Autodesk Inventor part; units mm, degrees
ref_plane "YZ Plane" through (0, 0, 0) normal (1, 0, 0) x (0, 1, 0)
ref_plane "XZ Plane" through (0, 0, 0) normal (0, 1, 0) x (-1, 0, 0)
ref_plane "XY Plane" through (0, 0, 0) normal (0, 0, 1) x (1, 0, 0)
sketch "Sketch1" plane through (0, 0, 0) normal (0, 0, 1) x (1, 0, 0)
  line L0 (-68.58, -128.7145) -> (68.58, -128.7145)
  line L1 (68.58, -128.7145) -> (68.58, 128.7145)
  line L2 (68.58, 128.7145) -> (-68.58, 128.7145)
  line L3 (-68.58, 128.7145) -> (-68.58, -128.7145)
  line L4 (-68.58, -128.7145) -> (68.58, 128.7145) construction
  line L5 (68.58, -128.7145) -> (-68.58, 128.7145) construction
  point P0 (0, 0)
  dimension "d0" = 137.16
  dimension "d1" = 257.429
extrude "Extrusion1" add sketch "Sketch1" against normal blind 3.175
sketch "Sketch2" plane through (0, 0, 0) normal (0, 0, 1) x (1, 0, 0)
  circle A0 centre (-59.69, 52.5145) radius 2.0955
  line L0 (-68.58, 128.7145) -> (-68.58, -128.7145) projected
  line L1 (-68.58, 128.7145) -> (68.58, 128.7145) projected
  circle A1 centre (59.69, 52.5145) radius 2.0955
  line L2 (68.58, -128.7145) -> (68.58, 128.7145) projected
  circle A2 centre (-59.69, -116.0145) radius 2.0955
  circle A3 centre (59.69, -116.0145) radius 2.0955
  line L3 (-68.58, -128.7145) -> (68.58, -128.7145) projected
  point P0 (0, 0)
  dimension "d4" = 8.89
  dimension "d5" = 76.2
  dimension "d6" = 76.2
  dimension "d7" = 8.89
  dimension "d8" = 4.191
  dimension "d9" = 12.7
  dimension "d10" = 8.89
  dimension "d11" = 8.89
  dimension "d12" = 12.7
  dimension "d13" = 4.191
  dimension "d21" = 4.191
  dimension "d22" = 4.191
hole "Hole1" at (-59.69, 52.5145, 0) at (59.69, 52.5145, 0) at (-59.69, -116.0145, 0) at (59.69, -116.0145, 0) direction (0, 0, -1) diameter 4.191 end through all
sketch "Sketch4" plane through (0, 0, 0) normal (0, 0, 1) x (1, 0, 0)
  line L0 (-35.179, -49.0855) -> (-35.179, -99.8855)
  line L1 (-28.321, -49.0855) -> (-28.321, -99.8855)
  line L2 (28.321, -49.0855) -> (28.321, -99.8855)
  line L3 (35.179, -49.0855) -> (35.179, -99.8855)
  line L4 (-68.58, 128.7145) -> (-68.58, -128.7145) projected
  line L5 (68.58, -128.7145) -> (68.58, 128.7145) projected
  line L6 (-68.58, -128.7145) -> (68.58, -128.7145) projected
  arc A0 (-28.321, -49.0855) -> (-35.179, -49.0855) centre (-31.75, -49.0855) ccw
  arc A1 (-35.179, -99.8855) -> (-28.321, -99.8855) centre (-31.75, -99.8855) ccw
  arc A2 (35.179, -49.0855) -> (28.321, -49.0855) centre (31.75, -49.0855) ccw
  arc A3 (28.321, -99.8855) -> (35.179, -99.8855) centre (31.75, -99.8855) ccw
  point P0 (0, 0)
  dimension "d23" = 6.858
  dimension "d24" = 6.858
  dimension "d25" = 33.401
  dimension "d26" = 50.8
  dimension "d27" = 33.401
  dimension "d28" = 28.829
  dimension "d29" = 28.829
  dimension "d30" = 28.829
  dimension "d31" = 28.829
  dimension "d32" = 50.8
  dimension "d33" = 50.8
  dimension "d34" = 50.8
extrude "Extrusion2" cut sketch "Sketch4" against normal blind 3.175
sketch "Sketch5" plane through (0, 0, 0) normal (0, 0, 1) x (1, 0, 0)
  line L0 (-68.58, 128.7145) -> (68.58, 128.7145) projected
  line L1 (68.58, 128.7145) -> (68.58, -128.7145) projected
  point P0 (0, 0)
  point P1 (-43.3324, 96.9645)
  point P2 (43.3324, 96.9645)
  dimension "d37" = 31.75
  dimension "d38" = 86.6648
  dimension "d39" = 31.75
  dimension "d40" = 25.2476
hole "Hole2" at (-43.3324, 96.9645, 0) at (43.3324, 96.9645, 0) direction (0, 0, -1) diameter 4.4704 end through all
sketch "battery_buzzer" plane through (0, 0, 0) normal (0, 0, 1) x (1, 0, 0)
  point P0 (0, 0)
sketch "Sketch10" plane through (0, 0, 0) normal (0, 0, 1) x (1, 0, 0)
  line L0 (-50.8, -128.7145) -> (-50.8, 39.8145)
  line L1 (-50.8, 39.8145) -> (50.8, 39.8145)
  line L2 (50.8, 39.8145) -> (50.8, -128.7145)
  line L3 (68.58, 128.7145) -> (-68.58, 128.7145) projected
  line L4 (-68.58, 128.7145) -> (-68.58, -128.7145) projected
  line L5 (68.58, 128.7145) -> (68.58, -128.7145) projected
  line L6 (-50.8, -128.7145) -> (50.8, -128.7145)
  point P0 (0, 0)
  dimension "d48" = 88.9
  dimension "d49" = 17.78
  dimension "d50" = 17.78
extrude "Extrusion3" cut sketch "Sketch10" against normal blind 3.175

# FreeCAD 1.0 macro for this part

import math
import FreeCAD as App
import Part
import Sketcher
from FreeCAD import Vector
Q = App.Units.Quantity

doc = App.newDocument("Part")
body = doc.addObject("PartDesign::Body", "Body")

# Sketch on XY plane
sketch1 = body.newObject("Sketcher::SketchObject", "Sketch")
sketch1.AttachmentSupport = (doc.getObject("XY_Plane"), [""])
sketch1.MapMode = "FlatFace"
sketch1.addGeometry([
    Part.LineSegment(Vector(-68.58, 128.7145, 0), Vector(-68.58, -128.7145, 0)),
    Part.LineSegment(Vector(-68.58, -128.7145, 0), Vector(68.58, -128.7145, 0)),
    Part.LineSegment(Vector(68.58, -128.7145, 0), Vector(68.58, 128.7145, 0)),
    Part.LineSegment(Vector(68.58, 128.7145, 0), Vector(-68.58, 128.7145, 0)),
], False)
sketch1.addConstraint([
    Sketcher.Constraint("Coincident", 0, 2, 1, 1),
    Sketcher.Constraint("Coincident", 1, 2, 2, 1),
    Sketcher.Constraint("Coincident", 2, 2, 3, 1),
    Sketcher.Constraint("Coincident", 3, 2, 0, 1),
    Sketcher.Constraint("Vertical", 0),
    Sketcher.Constraint("Horizontal", 1),
    Sketcher.Constraint("Vertical", 2),
    Sketcher.Constraint("Horizontal", 3),
    Sketcher.Constraint("Symmetric", 0, 2, 2, 2, -1, 1),
    Sketcher.Constraint("DistanceX", 1, 1, 1, 2, Q("5.4 in")),
    Sketcher.Constraint("DistanceY", 0, 2, 0, 1, Q("10.135 in")),
])
pad1 = body.newObject("PartDesign::Pad", "Pad")
pad1.Profile = sketch1
pad1.Length = Q("0.125 in")
pad1.Reversed = True

# Sketch on XY plane
sketch2 = body.newObject("Sketcher::SketchObject", "Sketch001")
sketch2.AttachmentSupport = (doc.getObject("XY_Plane"), [""])
sketch2.MapMode = "FlatFace"
sketch2.addGeometry([
    Part.Circle(Vector(-59.69, 52.5145, 0), Vector(0, 0, 1), 2.0955),
    Part.Circle(Vector(59.69, 52.5145, 0), Vector(0, 0, 1), 2.0955),
    Part.Circle(Vector(-59.69, -116.0145, 0), Vector(0, 0, 1), 2.0955),
    Part.Circle(Vector(59.69, -116.0145, 0), Vector(0, 0, 1), 2.0955),
], False)
sketch2.addConstraint([
    Sketcher.Constraint("Equal", 0, 1),
    Sketcher.Constraint("Equal", 1, 2),
    Sketcher.Constraint("Equal", 2, 3),
    Sketcher.Constraint("Symmetric", 0, 3, 1, 3, -2),
    Sketcher.Constraint("Symmetric", 2, 3, 3, 3, -2),
    Sketcher.Constraint("Vertical", 0, 3, 2, 3),
    Sketcher.Constraint("Diameter", 0, Q("0.165 in")),
    Sketcher.Constraint("DistanceX", 0, 3, 1, 3, Q("4.7 in")),
    Sketcher.Constraint("DistanceY", 2, 3, 0, 3, Q("6.635 in")),
    Sketcher.Constraint("DistanceY", -1, 1, 0, 3, Q("2.0675 in")),
])
doc.recompute()
hole = body.newObject("PartDesign::Hole", "Hole")
hole.Profile = sketch2
hole.ThreadType = "None"
hole.Diameter = Q("0.165 in")
hole.DepthType = "ThroughAll"

# Sketch on XY plane
sketch3 = body.newObject("Sketcher::SketchObject", "Sketch002")
sketch3.AttachmentSupport = (doc.getObject("XY_Plane"), [""])
sketch3.MapMode = "FlatFace"
sketch3.addGeometry([
    Part.ArcOfCircle(Part.Circle(Vector(-31.75, -49.0855, 0), Vector(0, 0, 1), 3.429), math.radians(0), math.radians(180)),  # 0
    Part.LineSegment(Vector(-35.179, -49.0855, 0), Vector(-35.179, -99.8855, 0)),  # 1
    Part.ArcOfCircle(Part.Circle(Vector(-31.75, -99.8855, 0), Vector(0, 0, 1), 3.429), math.radians(180), math.radians(360)),  # 2
    Part.LineSegment(Vector(-28.321, -99.8855, 0), Vector(-28.321, -49.0855, 0)),  # 3
    Part.ArcOfCircle(Part.Circle(Vector(31.75, -49.0855, 0), Vector(0, 0, 1), 3.429), math.radians(0), math.radians(180)),  # 4
    Part.LineSegment(Vector(28.321, -49.0855, 0), Vector(28.321, -99.8855, 0)),  # 5
    Part.ArcOfCircle(Part.Circle(Vector(31.75, -99.8855, 0), Vector(0, 0, 1), 3.429), math.radians(180), math.radians(360)),  # 6
    Part.LineSegment(Vector(35.179, -99.8855, 0), Vector(35.179, -49.0855, 0)),  # 7
], False)
sketch3.addConstraint([
    Sketcher.Constraint("Tangent", 0, 2, 1, 1),
    Sketcher.Constraint("Tangent", 1, 2, 2, 1),
    Sketcher.Constraint("Tangent", 2, 2, 3, 1),
    Sketcher.Constraint("Tangent", 3, 2, 0, 1),
    Sketcher.Constraint("Tangent", 4, 2, 5, 1),
    Sketcher.Constraint("Tangent", 5, 2, 6, 1),
    Sketcher.Constraint("Tangent", 6, 2, 7, 1),
    Sketcher.Constraint("Tangent", 7, 2, 4, 1),
    Sketcher.Constraint("Vertical", 1),
    Sketcher.Constraint("Vertical", 3),
    Sketcher.Constraint("Vertical", 5),
    Sketcher.Constraint("Vertical", 7),
    Sketcher.Constraint("Equal", 2, 4),
    Sketcher.Constraint("Symmetric", 0, 3, 4, 3, -2),
    Sketcher.Constraint("Horizontal", 2, 3, 6, 3),
    Sketcher.Constraint("DistanceY", 1, 2, 1, 1, Q("2 in")),
    Sketcher.Constraint("Radius", 0, Q("0.135 in")),
    Sketcher.Constraint("DistanceX", 0, 3, 4, 3, Q("2.5 in")),
    Sketcher.Constraint("DistanceY", 0, 3, -1, 1, Q("1.9325 in")),
])
pocket1 = body.newObject("PartDesign::Pocket", "Pocket")
pocket1.Profile = sketch3
pocket1.Length = Q("0.125 in")

# Sketch on XY plane
sketch4 = body.newObject("Sketcher::SketchObject", "Sketch003")
sketch4.AttachmentSupport = (doc.getObject("XY_Plane"), [""])
sketch4.MapMode = "FlatFace"
sketch4.addGeometry([
    Part.Circle(Vector(-43.3324, 96.9645, 0), Vector(0, 0, 1), 2.2352),
    Part.Circle(Vector(43.3324, 96.9645, 0), Vector(0, 0, 1), 2.2352),
], False)
sketch4.addConstraint([
    Sketcher.Constraint("Equal", 0, 1),
    Sketcher.Constraint("Symmetric", 0, 3, 1, 3, -2),
    Sketcher.Constraint("Diameter", 0, Q("0.176 in")),
    Sketcher.Constraint("DistanceX", 0, 3, -1, 1, Q("1.706 in")),
    Sketcher.Constraint("DistanceY", -1, 1, 0, 3, Q("3.8175 in")),
])
doc.recompute()
hole2 = body.newObject("PartDesign::Hole", "Hole001")
hole2.Profile = sketch4
hole2.ThreadType = "None"
hole2.Diameter = Q("0.176 in")
hole2.DepthType = "ThroughAll"

# Sketch on XY plane
sketch5 = body.newObject("Sketcher::SketchObject", "Sketch004")
sketch5.AttachmentSupport = (doc.getObject("XY_Plane"), [""])
sketch5.MapMode = "FlatFace"
sketch5.addGeometry([
    Part.LineSegment(Vector(-50.8, 39.8145, 0), Vector(-50.8, -128.7145, 0)),
    Part.LineSegment(Vector(-50.8, -128.7145, 0), Vector(50.8, -128.7145, 0)),
    Part.LineSegment(Vector(50.8, -128.7145, 0), Vector(50.8, 39.8145, 0)),
    Part.LineSegment(Vector(50.8, 39.8145, 0), Vector(-50.8, 39.8145, 0)),
], False)
sketch5.addConstraint([
    Sketcher.Constraint("Coincident", 0, 2, 1, 1),
    Sketcher.Constraint("Coincident", 1, 2, 2, 1),
    Sketcher.Constraint("Coincident", 2, 2, 3, 1),
    Sketcher.Constraint("Coincident", 3, 2, 0, 1),
    Sketcher.Constraint("Vertical", 0),
    Sketcher.Constraint("Horizontal", 1),
    Sketcher.Constraint("Vertical", 2),
    Sketcher.Constraint("Horizontal", 3),
    Sketcher.Constraint("DistanceX", 1, 1, 1, 2, Q("4 in")),
    Sketcher.Constraint("DistanceX", 0, 2, -1, 1, Q("2 in")),
    Sketcher.Constraint("DistanceY", 0, 2, 0, 1, Q("6.635 in")),
    Sketcher.Constraint("DistanceY", 0, 2, -1, 1, Q("5.0675 in")),
])
pocket2 = body.newObject("PartDesign::Pocket", "Pocket001")
pocket2.Profile = sketch5
pocket2.Length = Q("0.125 in")

doc.recompute()
